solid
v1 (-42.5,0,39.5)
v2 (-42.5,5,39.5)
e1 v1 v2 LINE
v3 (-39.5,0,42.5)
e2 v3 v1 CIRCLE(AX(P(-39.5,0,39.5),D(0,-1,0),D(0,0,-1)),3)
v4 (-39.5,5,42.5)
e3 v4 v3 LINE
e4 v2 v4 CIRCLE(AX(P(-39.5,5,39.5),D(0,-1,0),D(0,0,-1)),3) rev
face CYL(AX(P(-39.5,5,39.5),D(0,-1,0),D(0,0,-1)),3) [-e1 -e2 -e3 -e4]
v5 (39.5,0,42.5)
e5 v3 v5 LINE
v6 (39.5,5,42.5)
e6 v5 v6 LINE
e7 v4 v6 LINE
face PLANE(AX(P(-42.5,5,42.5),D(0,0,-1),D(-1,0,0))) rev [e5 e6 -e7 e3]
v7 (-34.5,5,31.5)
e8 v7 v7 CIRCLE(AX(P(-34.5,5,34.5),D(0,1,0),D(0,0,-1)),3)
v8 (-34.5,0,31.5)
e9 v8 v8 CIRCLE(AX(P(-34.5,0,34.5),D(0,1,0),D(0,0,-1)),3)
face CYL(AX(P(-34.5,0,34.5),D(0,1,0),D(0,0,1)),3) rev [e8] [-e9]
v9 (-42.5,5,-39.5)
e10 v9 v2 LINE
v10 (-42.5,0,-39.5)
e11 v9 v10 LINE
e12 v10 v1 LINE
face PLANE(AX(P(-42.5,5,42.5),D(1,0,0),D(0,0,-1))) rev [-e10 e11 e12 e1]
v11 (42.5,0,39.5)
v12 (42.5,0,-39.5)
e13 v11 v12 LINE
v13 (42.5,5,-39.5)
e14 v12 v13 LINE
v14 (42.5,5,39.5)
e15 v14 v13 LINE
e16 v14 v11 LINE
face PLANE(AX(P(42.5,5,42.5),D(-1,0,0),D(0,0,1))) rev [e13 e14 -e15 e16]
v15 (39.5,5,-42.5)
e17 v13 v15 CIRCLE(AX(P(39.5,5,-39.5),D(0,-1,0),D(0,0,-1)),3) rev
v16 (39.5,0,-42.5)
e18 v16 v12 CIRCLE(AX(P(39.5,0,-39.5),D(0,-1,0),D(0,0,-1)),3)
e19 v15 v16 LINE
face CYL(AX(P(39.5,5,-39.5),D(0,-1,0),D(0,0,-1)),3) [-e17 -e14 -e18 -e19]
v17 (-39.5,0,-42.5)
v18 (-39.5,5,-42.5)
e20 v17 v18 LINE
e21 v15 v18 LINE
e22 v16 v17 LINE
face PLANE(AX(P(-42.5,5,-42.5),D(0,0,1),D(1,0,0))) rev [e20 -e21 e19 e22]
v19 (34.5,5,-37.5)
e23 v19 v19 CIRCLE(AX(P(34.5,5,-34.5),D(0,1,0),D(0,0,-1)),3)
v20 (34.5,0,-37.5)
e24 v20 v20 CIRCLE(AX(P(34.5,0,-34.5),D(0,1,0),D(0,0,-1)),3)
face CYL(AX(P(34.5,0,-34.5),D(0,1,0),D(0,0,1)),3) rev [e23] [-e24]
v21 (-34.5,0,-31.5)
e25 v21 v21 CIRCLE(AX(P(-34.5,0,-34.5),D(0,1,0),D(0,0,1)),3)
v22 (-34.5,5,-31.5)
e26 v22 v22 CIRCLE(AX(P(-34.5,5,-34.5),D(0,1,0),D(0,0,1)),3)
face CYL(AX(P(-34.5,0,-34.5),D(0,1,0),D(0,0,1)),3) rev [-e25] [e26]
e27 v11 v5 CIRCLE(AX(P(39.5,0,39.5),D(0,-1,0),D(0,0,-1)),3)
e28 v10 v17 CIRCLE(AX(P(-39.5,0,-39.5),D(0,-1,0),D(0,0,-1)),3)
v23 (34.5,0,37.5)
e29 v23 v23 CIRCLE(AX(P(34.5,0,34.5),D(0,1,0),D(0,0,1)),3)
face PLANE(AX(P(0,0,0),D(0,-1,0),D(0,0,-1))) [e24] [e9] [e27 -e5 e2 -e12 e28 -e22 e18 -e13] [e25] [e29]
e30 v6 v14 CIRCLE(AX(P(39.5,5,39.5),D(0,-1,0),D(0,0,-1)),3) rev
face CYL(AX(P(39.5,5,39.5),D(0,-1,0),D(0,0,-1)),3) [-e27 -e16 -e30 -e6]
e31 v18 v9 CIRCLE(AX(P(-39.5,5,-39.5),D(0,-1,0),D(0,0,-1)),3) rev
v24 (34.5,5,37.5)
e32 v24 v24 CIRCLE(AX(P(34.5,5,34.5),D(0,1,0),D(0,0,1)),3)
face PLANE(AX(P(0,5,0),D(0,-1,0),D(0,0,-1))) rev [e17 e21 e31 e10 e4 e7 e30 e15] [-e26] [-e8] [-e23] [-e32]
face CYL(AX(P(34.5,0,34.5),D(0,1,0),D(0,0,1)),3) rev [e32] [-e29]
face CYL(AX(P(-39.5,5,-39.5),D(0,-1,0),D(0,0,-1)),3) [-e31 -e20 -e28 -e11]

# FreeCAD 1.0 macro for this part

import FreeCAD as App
import Part
import Sketcher
from FreeCAD import Vector


def edges_at(feature, points):
    """Names of the edges that pass closest to the given points."""
    edges = feature.Shape.Edges
    near = lambda p: min(range(len(edges)), key=lambda i: edges[i].distToShape(Part.Vertex(*p))[0])
    return sorted({f"Edge{near(p) + 1}" for p in points})

doc = App.newDocument("Part")
body = doc.addObject("PartDesign::Body", "Body")

sketch1 = body.newObject("Sketcher::SketchObject", "Sketch")
sketch1.AttachmentSupport = (doc.getObject("XZ_Plane"), [""])
sketch1.MapMode = "FlatFace"
sketch1.addGeometry([
    Part.LineSegment(Vector(-42, -42, 0), Vector(-42, 42, 0)),
    Part.LineSegment(Vector(-42, 42, 0), Vector(42, 42, 0)),
    Part.LineSegment(Vector(42, 42, 0), Vector(42, -42, 0)),
    Part.LineSegment(Vector(42, -42, 0), Vector(-42, -42, 0)),
], False)
sketch1.addConstraint([
    Sketcher.Constraint("Coincident", 0, 2, 1, 1),
    Sketcher.Constraint("Coincident", 1, 2, 2, 1),
    Sketcher.Constraint("Coincident", 2, 2, 3, 1),
    Sketcher.Constraint("Coincident", 3, 2, 0, 1),
    Sketcher.Constraint("Vertical", 0),
    Sketcher.Constraint("Horizontal", 1),
    Sketcher.Constraint("Vertical", 2),
    Sketcher.Constraint("Horizontal", 3),
    Sketcher.Constraint("Symmetric", 0, 2, 2, 2, -1, 1),
    Sketcher.Constraint("Equal", 3, 0),
    Sketcher.Constraint("DistanceX", 1, 1, 1, 2, 85.0),
])
pad1 = body.newObject("PartDesign::Pad", "Pad")
pad1.Profile = sketch1
pad1.Length = 5
pad1.Reversed = True
doc.recompute()

fillet = body.newObject("PartDesign::Fillet", "Fillet")
fillet.Base = (pad1, edges_at(pad1, [
    (42.5, 2.5, 42.5),
    (-42.5, 2.5, 42.5),
    (-42.5, 2.5, -42.5),
    (42.5, 2.5, -42.5),
]))
fillet.Radius = 3

sketch2 = body.newObject("Sketcher::SketchObject", "Sketch001")
sketch2.AttachmentSupport = (doc.getObject("XZ_Plane"), [""])
sketch2.MapMode = "FlatFace"
sketch2.AttachmentOffset = App.Placement(Vector(0, 0, -5), App.Rotation())
sketch2.addGeometry([
    Part.Circle(Vector(-34.5, -34.5, 0), Vector(0, 0, 1), 3),
    Part.Circle(Vector(-34.5, 34.5, 0), Vector(0, 0, 1), 3),
    Part.Circle(Vector(34.5, 34.5, 0), Vector(0, 0, 1), 3),
    Part.Circle(Vector(34.5, -34.5, 0), Vector(0, 0, 1), 3),
], False)
sketch2.addConstraint([
    Sketcher.Constraint("Equal", 0, 1),
    Sketcher.Constraint("Equal", 1, 2),
    Sketcher.Constraint("Equal", 2, 3),
    Sketcher.Constraint("Symmetric", 0, 3, 2, 3, -1, 1),
    Sketcher.Constraint("Symmetric", 1, 3, 3, 3, -1, 1),
    Sketcher.Constraint("Symmetric", 1, 3, 2, 3, -2),
    Sketcher.Constraint("Diameter", 0, 6.0),
    Sketcher.Constraint("DistanceY", 0, 3, 1, 3, 69.0),
    Sketcher.Constraint("DistanceX", 1, 3, 2, 3, 69.0),
])
pocket1 = body.newObject("PartDesign::Pocket", "Pocket")
pocket1.Profile = sketch2
pocket1.Type = "ThroughAll"
pocket1.Reversed = True

doc.recompute()
